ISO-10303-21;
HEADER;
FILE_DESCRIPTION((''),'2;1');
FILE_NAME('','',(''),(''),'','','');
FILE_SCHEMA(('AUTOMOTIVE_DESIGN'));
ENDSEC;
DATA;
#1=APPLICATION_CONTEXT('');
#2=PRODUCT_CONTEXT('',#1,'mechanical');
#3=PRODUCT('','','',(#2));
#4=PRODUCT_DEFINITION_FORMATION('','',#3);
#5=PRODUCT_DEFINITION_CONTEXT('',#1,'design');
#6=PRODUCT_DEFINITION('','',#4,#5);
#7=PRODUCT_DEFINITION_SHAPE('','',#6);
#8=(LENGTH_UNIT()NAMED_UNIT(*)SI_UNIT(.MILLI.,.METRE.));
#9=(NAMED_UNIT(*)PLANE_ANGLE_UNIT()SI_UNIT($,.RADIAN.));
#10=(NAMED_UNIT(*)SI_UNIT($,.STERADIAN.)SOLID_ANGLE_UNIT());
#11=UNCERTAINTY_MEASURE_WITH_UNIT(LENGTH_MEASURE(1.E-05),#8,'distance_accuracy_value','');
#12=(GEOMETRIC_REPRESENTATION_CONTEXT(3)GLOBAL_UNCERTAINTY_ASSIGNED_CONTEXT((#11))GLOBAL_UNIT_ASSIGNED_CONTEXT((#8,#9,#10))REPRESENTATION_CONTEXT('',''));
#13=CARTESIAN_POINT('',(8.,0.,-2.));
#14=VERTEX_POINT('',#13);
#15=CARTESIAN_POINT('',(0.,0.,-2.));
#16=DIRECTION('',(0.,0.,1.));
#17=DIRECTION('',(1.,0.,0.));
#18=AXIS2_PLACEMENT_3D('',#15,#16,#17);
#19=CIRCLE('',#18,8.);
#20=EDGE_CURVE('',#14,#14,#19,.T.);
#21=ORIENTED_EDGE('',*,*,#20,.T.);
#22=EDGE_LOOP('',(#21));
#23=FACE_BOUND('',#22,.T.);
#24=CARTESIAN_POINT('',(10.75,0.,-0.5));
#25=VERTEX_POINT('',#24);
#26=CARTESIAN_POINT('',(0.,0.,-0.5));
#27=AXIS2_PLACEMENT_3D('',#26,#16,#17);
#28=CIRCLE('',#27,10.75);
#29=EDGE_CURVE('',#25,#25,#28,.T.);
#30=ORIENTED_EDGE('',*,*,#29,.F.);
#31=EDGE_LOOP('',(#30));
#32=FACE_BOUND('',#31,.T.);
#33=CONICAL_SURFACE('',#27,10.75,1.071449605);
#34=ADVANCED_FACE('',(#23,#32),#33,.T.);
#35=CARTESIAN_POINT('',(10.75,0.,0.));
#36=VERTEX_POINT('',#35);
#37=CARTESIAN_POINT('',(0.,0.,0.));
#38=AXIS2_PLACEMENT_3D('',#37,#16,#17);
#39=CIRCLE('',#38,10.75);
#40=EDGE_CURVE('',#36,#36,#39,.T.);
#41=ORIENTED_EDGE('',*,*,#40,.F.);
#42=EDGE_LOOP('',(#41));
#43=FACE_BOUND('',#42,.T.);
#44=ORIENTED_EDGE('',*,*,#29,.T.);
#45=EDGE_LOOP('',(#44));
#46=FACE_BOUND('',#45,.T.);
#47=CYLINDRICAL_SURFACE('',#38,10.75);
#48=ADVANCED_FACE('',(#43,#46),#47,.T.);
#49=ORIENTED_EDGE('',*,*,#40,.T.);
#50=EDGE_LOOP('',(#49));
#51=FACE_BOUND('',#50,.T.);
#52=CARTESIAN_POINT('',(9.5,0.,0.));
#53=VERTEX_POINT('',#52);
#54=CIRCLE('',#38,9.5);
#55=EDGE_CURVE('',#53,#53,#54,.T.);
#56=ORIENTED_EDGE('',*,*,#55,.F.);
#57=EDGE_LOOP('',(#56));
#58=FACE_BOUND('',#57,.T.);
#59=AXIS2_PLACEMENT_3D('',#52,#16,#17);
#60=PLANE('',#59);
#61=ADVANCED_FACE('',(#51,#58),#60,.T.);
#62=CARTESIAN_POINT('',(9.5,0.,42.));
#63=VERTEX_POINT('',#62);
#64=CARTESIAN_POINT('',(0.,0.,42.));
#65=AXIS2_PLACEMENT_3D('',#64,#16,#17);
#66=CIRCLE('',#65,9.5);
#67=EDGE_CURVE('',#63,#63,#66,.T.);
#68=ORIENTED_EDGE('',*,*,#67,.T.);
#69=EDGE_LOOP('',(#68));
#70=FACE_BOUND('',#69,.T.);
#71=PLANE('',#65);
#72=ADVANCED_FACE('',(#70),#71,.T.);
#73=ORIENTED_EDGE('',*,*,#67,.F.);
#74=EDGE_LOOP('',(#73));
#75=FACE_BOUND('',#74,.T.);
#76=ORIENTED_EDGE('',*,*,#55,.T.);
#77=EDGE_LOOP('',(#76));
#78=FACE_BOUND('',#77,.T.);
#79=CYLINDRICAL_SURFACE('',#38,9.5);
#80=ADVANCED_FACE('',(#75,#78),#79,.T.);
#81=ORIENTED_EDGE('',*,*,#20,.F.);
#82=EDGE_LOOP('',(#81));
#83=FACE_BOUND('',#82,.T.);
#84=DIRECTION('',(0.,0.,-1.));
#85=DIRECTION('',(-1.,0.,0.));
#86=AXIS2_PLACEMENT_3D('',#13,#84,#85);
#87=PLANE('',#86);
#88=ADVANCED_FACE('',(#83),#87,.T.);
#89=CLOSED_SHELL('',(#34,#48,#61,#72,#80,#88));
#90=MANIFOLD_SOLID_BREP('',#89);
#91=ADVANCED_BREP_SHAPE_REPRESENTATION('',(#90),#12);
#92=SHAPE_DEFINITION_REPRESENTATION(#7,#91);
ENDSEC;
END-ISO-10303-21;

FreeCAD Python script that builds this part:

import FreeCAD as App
import Part
import Sketcher

V = App.Vector
Q = App.Units.Quantity


def add_polygon(sketch, points):
    """Adds a closed chain of lines whose ends are joined by coincident constraints."""
    first, n = sketch.GeometryCount, len(points)
    for a, b in zip(points, points[1:] + points[:1]):
        sketch.addGeometry(Part.LineSegment(App.Vector(*a, 0), App.Vector(*b, 0)), False)
    for i in range(n):
        sketch.addConstraint(Sketcher.Constraint("Coincident", first + i, 2, first + (i + 1) % n, 1))

doc = App.newDocument("Part")
body = doc.addObject("PartDesign::Body", "Body")

# Sketch on XZ plane
sketch1 = body.newObject("Sketcher::SketchObject", "Sketch")
sketch1.AttachmentSupport = (doc.getObject("XZ_Plane"), [""])
sketch1.MapMode = "FlatFace"
add_polygon(sketch1, [(0, -2), (0, 42), (9.5, 42), (9.5, 0), (10.8, 0), (10.8, -0.5), (8, -2)])  # lines 0-6
sketch1.addConstraint(Sketcher.Constraint("Vertical", 0))
sketch1.addConstraint(Sketcher.Constraint("Horizontal", 1))
sketch1.addConstraint(Sketcher.Constraint("Vertical", 2))
sketch1.addConstraint(Sketcher.Constraint("Horizontal", 3))
sketch1.addConstraint(Sketcher.Constraint("Vertical", 4))
sketch1.addConstraint(Sketcher.Constraint("Horizontal", 6))
sketch1.addConstraint(Sketcher.Constraint("PointOnObject", 0, 2, -2))
sketch1.addConstraint(Sketcher.Constraint("PointOnObject", 2, 2, -1))
sketch1.addConstraint(Sketcher.Constraint("DistanceX", 6, 2, 6, 1, Q("8 mm")))
sketch1.addConstraint(Sketcher.Constraint("DistanceY", 0, 1, 0, 2, Q("44 mm")))
sketch1.addConstraint(Sketcher.Constraint("DistanceY", 2, 2, 2, 1, Q("42 mm")))
sketch1.addConstraint(Sketcher.Constraint("DistanceX", 1, 1, 1, 2, Q("9.5 mm")))
sketch1.addConstraint(Sketcher.Constraint("DistanceY", 4, 2, 4, 1, Q("0.5 mm")))
sketch1.addConstraint(Sketcher.Constraint("DistanceX", 3, 1, 3, 2, Q("1.25 mm")))
revolution = body.newObject("PartDesign::Revolution", "Revolution")
revolution.Profile = sketch1
revolution.ReferenceAxis = (sketch1, ["V_Axis"])
revolution.Angle = 360

doc.recompute()
